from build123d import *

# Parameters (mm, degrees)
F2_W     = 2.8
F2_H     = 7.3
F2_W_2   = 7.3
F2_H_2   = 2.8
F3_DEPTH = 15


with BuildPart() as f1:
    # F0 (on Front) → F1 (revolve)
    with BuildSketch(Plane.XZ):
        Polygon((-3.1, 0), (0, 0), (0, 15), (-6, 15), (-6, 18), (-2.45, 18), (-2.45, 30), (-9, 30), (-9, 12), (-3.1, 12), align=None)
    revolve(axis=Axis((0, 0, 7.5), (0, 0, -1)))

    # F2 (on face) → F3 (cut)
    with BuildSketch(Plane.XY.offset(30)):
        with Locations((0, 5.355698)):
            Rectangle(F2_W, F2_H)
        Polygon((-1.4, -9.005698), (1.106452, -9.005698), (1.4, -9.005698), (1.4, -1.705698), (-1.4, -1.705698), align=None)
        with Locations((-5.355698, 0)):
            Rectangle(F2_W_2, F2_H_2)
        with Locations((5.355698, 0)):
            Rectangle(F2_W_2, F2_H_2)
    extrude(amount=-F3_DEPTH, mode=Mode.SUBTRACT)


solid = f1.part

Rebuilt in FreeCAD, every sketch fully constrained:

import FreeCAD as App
import Part
import Sketcher
from FreeCAD import Vector
Q = App.Units.Quantity


def add_polygon(sketch, points):
    """Adds a closed chain of lines whose ends are joined by coincident constraints."""
    first, n = sketch.GeometryCount, len(points)
    for a, b in zip(points, points[1:] + points[:1]):
        sketch.addGeometry(Part.LineSegment(App.Vector(*a, 0), App.Vector(*b, 0)), False)
    for i in range(n):
        sketch.addConstraint(Sketcher.Constraint("Coincident", first + i, 2, first + (i + 1) % n, 1))

doc = App.newDocument("Part")
body = doc.addObject("PartDesign::Body", "Body")

sketch1 = body.newObject("Sketcher::SketchObject", "Sketch")
sketch1.AttachmentSupport = (doc.getObject("XZ_Plane"), [""])
sketch1.MapMode = "FlatFace"
add_polygon(sketch1, [(-3.1, 0), (0, 0), (0, 15), (-6, 15), (-6, 18), (-2.5, 18), (-2.5, 30), (-9, 30), (-9, 12), (-3.1, 12)])
sketch1.addConstraint(Sketcher.Constraint("Horizontal", 0))
sketch1.addConstraint(Sketcher.Constraint("Vertical", 1))
sketch1.addConstraint(Sketcher.Constraint("Horizontal", 2))
sketch1.addConstraint(Sketcher.Constraint("Vertical", 3))
sketch1.addConstraint(Sketcher.Constraint("Horizontal", 4))
sketch1.addConstraint(Sketcher.Constraint("Vertical", 5))
sketch1.addConstraint(Sketcher.Constraint("Horizontal", 6))
sketch1.addConstraint(Sketcher.Constraint("Vertical", 7))
sketch1.addConstraint(Sketcher.Constraint("Horizontal", 8))
sketch1.addConstraint(Sketcher.Constraint("Vertical", 9))
sketch1.addConstraint(Sketcher.Constraint("Coincident", 0, 2, -1, 1))
sketch1.addConstraint(Sketcher.Constraint("Equal", 5, 9))
sketch1.addConstraint(Sketcher.Constraint("DistanceX", 2, 2, 2, 1, Q("6 mm")))
sketch1.addConstraint(Sketcher.Constraint("DistanceY", 1, 1, 1, 2, Q("15 mm")))
sketch1.addConstraint(Sketcher.Constraint("DistanceY", 3, 1, 3, 2, Q("3 mm")))
sketch1.addConstraint(Sketcher.Constraint("DistanceY", 5, 1, 5, 2, Q("12 mm")))
sketch1.addConstraint(Sketcher.Constraint("DistanceX", 0, 1, 0, 2, Q("3.1 mm")))
sketch1.addConstraint(Sketcher.Constraint("DistanceX", 8, 1, 8, 2, Q("5.9 mm")))
sketch1.addConstraint(Sketcher.Constraint("DistanceX", 4, 1, 4, 2, Q("3.55 mm")))
revolution = body.newObject("PartDesign::Revolution", "Revolution")
revolution.Profile = sketch1
revolution.ReferenceAxis = (sketch1, ["V_Axis"])
revolution.Angle = 360

sketch2 = body.newObject("Sketcher::SketchObject", "Sketch001")
sketch2.AttachmentSupport = (doc.getObject("XY_Plane"), [""])
sketch2.MapMode = "FlatFace"
sketch2.AttachmentOffset = App.Placement(Vector(0, 0, 30), App.Rotation())
add_polygon(sketch2, [(-1.4, 9), (-1.4, 1.7), (1.4, 1.7), (1.4, 9)])
add_polygon(sketch2, [(-1.4, -9), (1.4, -9), (1.4, -1.7), (-1.4, -1.7)])
add_polygon(sketch2, [(-9, 1.4), (-9, -1.4), (-1.7, -1.4), (-1.7, 1.4)])
add_polygon(sketch2, [(1.7, 1.4), (1.7, -1.4), (9, -1.4), (9, 1.4)])
sketch2.addConstraint(Sketcher.Constraint("Vertical", 0))
sketch2.addConstraint(Sketcher.Constraint("Horizontal", 1))
sketch2.addConstraint(Sketcher.Constraint("Vertical", 2))
sketch2.addConstraint(Sketcher.Constraint("Horizontal", 3))
sketch2.addConstraint(Sketcher.Constraint("Horizontal", 4))
sketch2.addConstraint(Sketcher.Constraint("Vertical", 5))
sketch2.addConstraint(Sketcher.Constraint("Horizontal", 6))
sketch2.addConstraint(Sketcher.Constraint("Vertical", 7))
sketch2.addConstraint(Sketcher.Constraint("Vertical", 8))
sketch2.addConstraint(Sketcher.Constraint("Horizontal", 9))
sketch2.addConstraint(Sketcher.Constraint("Vertical", 10))
sketch2.addConstraint(Sketcher.Constraint("Horizontal", 11))
sketch2.addConstraint(Sketcher.Constraint("Vertical", 12))
sketch2.addConstraint(Sketcher.Constraint("Horizontal", 13))
sketch2.addConstraint(Sketcher.Constraint("Vertical", 14))
sketch2.addConstraint(Sketcher.Constraint("Horizontal", 15))
sketch2.addConstraint(Sketcher.Constraint("Symmetric", 3, 2, 4, 2, -1, 1))
sketch2.addConstraint(Sketcher.Constraint("Symmetric", 1, 2, 6, 2, -1, 1))
sketch2.addConstraint(Sketcher.Constraint("Symmetric", 10, 2, 12, 2, -1, 1))
sketch2.addConstraint(Sketcher.Constraint("Symmetric", 8, 2, 14, 2, -1, 1))
sketch2.addConstraint(Sketcher.Constraint("Horizontal", 9, 2, 12, 2))
sketch2.addConstraint(Sketcher.Constraint("Vertical", 2, 2, 4, 2))
sketch2.addConstraint(Sketcher.Constraint("Equal", 15, 0))
sketch2.addConstraint(Sketcher.Constraint("Equal", 6, 8))
sketch2.addConstraint(Sketcher.Constraint("DistanceX", 1, 1, 1, 2, Q("2.8 mm")))
sketch2.addConstraint(Sketcher.Constraint("DistanceX", 9, 1, 9, 2, Q("7.3 mm")))
sketch2.addConstraint(Sketcher.Constraint("DistanceY", -1, 1, 2, 2, Q("9.005698 mm")))
sketch2.addConstraint(Sketcher.Constraint("DistanceX", 8, 2, -1, 1, Q("9.005698 mm")))
pocket1 = body.newObject("PartDesign::Pocket", "Pocket")
pocket1.Profile = sketch2
pocket1.Length = 15

doc.recompute()
